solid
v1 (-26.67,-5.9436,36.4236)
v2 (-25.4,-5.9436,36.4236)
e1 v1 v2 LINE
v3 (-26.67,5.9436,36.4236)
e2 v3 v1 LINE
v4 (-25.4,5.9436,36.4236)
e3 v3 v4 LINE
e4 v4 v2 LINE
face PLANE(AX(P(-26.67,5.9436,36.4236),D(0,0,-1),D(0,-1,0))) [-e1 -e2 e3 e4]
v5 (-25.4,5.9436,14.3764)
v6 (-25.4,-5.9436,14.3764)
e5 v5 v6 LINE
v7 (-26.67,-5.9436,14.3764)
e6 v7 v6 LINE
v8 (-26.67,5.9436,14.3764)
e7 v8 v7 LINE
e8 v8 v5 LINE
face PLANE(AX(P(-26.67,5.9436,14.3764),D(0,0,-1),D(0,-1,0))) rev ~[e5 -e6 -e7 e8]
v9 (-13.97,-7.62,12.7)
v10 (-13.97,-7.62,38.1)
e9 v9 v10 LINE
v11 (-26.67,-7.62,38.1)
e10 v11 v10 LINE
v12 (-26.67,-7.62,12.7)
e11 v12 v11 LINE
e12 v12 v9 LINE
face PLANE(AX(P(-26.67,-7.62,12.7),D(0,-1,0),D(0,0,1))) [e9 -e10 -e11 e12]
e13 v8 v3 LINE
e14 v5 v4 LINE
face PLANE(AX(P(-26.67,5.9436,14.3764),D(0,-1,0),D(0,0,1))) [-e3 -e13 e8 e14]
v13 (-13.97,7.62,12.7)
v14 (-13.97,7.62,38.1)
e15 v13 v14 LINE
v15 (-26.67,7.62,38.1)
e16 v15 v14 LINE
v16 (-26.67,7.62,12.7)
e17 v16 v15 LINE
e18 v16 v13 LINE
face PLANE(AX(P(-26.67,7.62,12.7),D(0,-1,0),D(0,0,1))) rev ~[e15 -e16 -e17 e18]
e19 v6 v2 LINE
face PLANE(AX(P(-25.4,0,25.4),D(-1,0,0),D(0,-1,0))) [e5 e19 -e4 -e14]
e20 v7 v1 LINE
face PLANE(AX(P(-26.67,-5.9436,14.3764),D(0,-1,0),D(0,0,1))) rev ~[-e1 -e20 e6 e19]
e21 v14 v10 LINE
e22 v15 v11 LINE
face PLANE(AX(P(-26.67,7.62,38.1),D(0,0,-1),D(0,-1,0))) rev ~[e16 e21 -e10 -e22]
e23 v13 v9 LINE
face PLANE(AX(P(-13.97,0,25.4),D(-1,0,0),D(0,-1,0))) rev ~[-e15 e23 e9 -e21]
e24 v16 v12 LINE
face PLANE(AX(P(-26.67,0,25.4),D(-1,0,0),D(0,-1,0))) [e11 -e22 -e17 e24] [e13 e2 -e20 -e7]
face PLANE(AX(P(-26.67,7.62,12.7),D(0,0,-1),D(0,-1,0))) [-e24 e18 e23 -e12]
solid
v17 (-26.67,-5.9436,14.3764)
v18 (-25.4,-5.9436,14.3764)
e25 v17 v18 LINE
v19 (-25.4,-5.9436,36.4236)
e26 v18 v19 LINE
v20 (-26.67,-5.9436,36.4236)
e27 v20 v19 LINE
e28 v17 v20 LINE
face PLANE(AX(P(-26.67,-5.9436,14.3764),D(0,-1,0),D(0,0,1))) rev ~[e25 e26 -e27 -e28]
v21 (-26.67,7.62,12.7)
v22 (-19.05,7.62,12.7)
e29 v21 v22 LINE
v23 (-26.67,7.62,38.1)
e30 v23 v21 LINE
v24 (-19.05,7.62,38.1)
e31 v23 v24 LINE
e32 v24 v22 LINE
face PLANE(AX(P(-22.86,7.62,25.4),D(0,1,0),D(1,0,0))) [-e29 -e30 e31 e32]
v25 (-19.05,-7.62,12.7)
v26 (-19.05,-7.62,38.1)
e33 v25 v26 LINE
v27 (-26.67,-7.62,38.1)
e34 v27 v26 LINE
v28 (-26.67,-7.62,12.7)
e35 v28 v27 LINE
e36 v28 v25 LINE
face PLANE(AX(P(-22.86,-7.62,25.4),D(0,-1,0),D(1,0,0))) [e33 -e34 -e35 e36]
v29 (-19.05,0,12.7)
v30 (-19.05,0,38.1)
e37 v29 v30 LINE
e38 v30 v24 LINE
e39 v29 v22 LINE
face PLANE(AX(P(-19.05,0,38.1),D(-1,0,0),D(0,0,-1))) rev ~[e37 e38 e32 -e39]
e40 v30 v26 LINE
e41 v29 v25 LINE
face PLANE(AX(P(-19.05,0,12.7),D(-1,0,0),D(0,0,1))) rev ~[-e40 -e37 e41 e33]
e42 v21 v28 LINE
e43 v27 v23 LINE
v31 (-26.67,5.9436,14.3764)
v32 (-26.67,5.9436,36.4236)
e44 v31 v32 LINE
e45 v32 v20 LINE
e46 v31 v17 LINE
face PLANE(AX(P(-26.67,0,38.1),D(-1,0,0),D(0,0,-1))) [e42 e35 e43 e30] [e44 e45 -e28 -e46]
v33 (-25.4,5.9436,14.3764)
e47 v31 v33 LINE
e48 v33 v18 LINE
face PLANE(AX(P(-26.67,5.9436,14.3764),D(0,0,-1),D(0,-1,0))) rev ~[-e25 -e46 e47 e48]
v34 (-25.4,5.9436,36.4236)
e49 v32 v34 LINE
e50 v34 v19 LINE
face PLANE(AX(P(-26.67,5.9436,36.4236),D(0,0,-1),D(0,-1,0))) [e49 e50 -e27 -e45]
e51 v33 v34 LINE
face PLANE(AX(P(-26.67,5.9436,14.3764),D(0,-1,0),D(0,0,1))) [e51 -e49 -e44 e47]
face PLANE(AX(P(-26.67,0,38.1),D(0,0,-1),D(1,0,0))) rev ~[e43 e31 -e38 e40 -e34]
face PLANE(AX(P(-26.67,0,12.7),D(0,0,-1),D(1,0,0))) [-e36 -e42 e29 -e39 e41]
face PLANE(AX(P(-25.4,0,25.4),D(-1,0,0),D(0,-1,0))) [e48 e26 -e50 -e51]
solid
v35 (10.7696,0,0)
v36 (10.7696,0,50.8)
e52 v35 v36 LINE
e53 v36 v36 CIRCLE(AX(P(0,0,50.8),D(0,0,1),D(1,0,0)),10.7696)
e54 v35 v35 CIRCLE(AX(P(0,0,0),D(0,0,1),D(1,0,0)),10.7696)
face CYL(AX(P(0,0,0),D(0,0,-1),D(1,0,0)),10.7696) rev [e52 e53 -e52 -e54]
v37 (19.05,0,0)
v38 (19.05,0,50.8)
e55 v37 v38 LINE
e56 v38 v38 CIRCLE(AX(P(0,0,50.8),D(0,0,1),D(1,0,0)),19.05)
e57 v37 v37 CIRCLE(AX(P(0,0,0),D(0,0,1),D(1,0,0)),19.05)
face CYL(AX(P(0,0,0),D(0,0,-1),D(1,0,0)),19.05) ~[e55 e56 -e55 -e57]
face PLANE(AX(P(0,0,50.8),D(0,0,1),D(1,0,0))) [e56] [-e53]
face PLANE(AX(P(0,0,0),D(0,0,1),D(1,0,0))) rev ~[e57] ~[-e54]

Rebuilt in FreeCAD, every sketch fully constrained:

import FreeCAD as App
import Part
import Sketcher
from FreeCAD import Vector
Q = App.Units.Quantity


def add_polygon(sketch, points):
    """Adds a closed chain of lines whose ends are joined by coincident constraints."""
    first, n = sketch.GeometryCount, len(points)
    for a, b in zip(points, points[1:] + points[:1]):
        sketch.addGeometry(Part.LineSegment(App.Vector(*a, 0), App.Vector(*b, 0)), False)
    for i in range(n):
        sketch.addConstraint(Sketcher.Constraint("Coincident", first + i, 2, first + (i + 1) % n, 1))

doc = App.newDocument("Part")
body = doc.addObject("PartDesign::Body", "Body")

# Sketch on XY plane
sketch1 = doc.addObject("Sketcher::SketchObject", "Sketch")
body.addObject(sketch1)
sketch1.AttachmentSupport = (doc.XY_Plane, [""])
sketch1.MapMode = "FlatFace"
sketch1.addGeometry(Part.Circle(Vector(0, 0, 0), Vector(0, 0, 1), 19), False)
sketch1.addGeometry(Part.Circle(Vector(0, 0, 0), Vector(0, 0, 1), 11), False)
sketch1.addConstraint(Sketcher.Constraint("Coincident", 0, 3, -1, 1))
sketch1.addConstraint(Sketcher.Constraint("Coincident", 1, 3, -1, 1))
sketch1.addConstraint(Sketcher.Constraint("Diameter", 0, Q("1.5 in")))
sketch1.addConstraint(Sketcher.Constraint("Diameter", 1, Q("0.848 in")))
pad1 = doc.addObject("PartDesign::Pad", "Pad")
body.addObject(pad1)
pad1.Profile = sketch1
pad1.Length = Q("2 in")
body2 = doc.addObject("PartDesign::Body", "Body001")

# Sketch on XZ plane
sketch2 = doc.addObject("Sketcher::SketchObject", "Sketch001")
body2.addObject(sketch2)
sketch2.AttachmentSupport = (doc.getObject("XZ_Plane001"), [""])
sketch2.MapMode = "FlatFace"
add_polygon(sketch2, [(-27, 38), (-27, 13), (-19, 13), (-19, 38)])  # lines 0-3
sketch2.addConstraint(Sketcher.Constraint("Vertical", 0))
sketch2.addConstraint(Sketcher.Constraint("Horizontal", 1))
sketch2.addConstraint(Sketcher.Constraint("Vertical", 2))
sketch2.addConstraint(Sketcher.Constraint("Horizontal", 3))
sketch2.addConstraint(Sketcher.Constraint("DistanceY", 0, 2, 0, 1, Q("1 in")))
sketch2.addConstraint(Sketcher.Constraint("DistanceX", 1, 1, 1, 2, Q("0.3 in")))
sketch2.addConstraint(Sketcher.Constraint("DistanceY", -1, 1, 0, 2, Q("0.5 in")))
sketch2.addConstraint(Sketcher.Constraint("DistanceX", 0, 2, -1, 1, Q("1.05 in")))
pad2 = doc.addObject("PartDesign::Pad", "Pad001")
body2.addObject(pad2)
pad2.Profile = sketch2
pad2.Length = Q("0.3 in")
body.AllowCompound = True
doc.recompute()

boolean = doc.addObject("PartDesign::Boolean", "Boolean")
body.addObject(boolean)
boolean.Type = "Fuse"
boolean.addObjects([body2])

# Sketch on XZ plane
sketch3 = doc.addObject("Sketcher::SketchObject", "Sketch002")
body.addObject(sketch3)
sketch3.AttachmentSupport = (doc.XZ_Plane, [""])
sketch3.MapMode = "FlatFace"
add_polygon(sketch3, [(-27, 13), (-27, 38), (-19, 38), (-19, 13)])  # lines 0-3
sketch3.addConstraint(Sketcher.Constraint("Vertical", 0))
sketch3.addConstraint(Sketcher.Constraint("Horizontal", 1))
sketch3.addConstraint(Sketcher.Constraint("Vertical", 2))
sketch3.addConstraint(Sketcher.Constraint("Horizontal", 3))
sketch3.addConstraint(Sketcher.Constraint("DistanceY", 0, 1, 0, 2, Q("1 in")))
sketch3.addConstraint(Sketcher.Constraint("DistanceX", 1, 1, 1, 2, Q("0.3 in")))
sketch3.addConstraint(Sketcher.Constraint("DistanceY", -1, 1, 0, 2, Q("1.5 in")))
sketch3.addConstraint(Sketcher.Constraint("DistanceX", 0, 2, -1, 1, Q("1.05 in")))
pad3 = doc.addObject("PartDesign::Pad", "Pad002")
body.addObject(pad3)
pad3.Profile = sketch3
pad3.Length = Q("0.3 in")
pad3.Reversed = True
body3 = doc.addObject("PartDesign::Body", "Body002")

# Sketch on YZ plane
sketch4 = doc.addObject("Sketcher::SketchObject", "Sketch003")
body3.addObject(sketch4)
sketch4.AttachmentSupport = (doc.getObject("YZ_Plane002"), [""])
sketch4.MapMode = "FlatFace"
sketch4.AttachmentOffset = App.Placement(Vector(0, 0, -1.05 * 25.4), App.Rotation())
add_polygon(sketch4, [(8, 38), (8, 13), (-8, 13), (-8, 38)])  # lines 0-3
sketch4.addConstraint(Sketcher.Constraint("Vertical", 0))
sketch4.addConstraint(Sketcher.Constraint("Horizontal", 1))
sketch4.addConstraint(Sketcher.Constraint("Vertical", 2))
sketch4.addConstraint(Sketcher.Constraint("Horizontal", 3))
sketch4.addConstraint(Sketcher.Constraint("DistanceY", 0, 2, 0, 1, Q("1 in")))
sketch4.addConstraint(Sketcher.Constraint("DistanceX", 1, 2, 1, 1, Q("0.6 in")))
sketch4.addConstraint(Sketcher.Constraint("DistanceX", -1, 1, 0, 2, Q("0.3 in")))
sketch4.addConstraint(Sketcher.Constraint("DistanceY", -1, 1, 0, 2, Q("0.5 in")))
pad4 = doc.addObject("PartDesign::Pad", "Pad003")
body3.addObject(pad4)
pad4.Profile = sketch4
pad4.Length = Q("0.5 in")
body4 = doc.addObject("PartDesign::Body", "Body003")

# Sketch on YZ plane
sketch5 = doc.addObject("Sketcher::SketchObject", "Sketch004")
body4.addObject(sketch5)
sketch5.AttachmentSupport = (doc.getObject("YZ_Plane003"), [""])
sketch5.MapMode = "FlatFace"
sketch5.AttachmentOffset = App.Placement(Vector(0, 0, -1.05 * 25.4), App.Rotation())
add_polygon(sketch5, [(6, 36), (6, 14), (-6, 14), (-6, 36)])  # lines 0-3
sketch5.addConstraint(Sketcher.Constraint("Vertical", 0))
sketch5.addConstraint(Sketcher.Constraint("Horizontal", 1))
sketch5.addConstraint(Sketcher.Constraint("Vertical", 2))
sketch5.addConstraint(Sketcher.Constraint("Horizontal", 3))
sketch5.addConstraint(Sketcher.Constraint("DistanceX", 1, 2, 1, 1, Q("0.468 in")))
sketch5.addConstraint(Sketcher.Constraint("DistanceY", 0, 2, 0, 1, Q("0.868 in")))
sketch5.addConstraint(Sketcher.Constraint("DistanceX", -1, 1, 0, 2, Q("0.234 in")))
sketch5.addConstraint(Sketcher.Constraint("DistanceY", -1, 1, 0, 2, Q("0.566 in")))
pad5 = doc.addObject("PartDesign::Pad", "Pad004")
body4.addObject(pad5)
pad5.Profile = sketch5
pad5.Length = Q("0.05 in")
body.AllowCompound = True
doc.recompute()

body5 = doc.addObject("PartDesign::Body", "Body004")
body5.BaseFeature = body4
boolean2 = doc.addObject("PartDesign::Boolean", "Boolean001")
body.addObject(boolean2)
boolean2.Type = "Cut"
boolean2.addObjects([body5])
doc.recompute()

boolean3 = doc.addObject("PartDesign::Boolean", "Boolean002")
body3.addObject(boolean3)
boolean3.Type = "Cut"
boolean3.addObjects([body4])

doc.recompute()
